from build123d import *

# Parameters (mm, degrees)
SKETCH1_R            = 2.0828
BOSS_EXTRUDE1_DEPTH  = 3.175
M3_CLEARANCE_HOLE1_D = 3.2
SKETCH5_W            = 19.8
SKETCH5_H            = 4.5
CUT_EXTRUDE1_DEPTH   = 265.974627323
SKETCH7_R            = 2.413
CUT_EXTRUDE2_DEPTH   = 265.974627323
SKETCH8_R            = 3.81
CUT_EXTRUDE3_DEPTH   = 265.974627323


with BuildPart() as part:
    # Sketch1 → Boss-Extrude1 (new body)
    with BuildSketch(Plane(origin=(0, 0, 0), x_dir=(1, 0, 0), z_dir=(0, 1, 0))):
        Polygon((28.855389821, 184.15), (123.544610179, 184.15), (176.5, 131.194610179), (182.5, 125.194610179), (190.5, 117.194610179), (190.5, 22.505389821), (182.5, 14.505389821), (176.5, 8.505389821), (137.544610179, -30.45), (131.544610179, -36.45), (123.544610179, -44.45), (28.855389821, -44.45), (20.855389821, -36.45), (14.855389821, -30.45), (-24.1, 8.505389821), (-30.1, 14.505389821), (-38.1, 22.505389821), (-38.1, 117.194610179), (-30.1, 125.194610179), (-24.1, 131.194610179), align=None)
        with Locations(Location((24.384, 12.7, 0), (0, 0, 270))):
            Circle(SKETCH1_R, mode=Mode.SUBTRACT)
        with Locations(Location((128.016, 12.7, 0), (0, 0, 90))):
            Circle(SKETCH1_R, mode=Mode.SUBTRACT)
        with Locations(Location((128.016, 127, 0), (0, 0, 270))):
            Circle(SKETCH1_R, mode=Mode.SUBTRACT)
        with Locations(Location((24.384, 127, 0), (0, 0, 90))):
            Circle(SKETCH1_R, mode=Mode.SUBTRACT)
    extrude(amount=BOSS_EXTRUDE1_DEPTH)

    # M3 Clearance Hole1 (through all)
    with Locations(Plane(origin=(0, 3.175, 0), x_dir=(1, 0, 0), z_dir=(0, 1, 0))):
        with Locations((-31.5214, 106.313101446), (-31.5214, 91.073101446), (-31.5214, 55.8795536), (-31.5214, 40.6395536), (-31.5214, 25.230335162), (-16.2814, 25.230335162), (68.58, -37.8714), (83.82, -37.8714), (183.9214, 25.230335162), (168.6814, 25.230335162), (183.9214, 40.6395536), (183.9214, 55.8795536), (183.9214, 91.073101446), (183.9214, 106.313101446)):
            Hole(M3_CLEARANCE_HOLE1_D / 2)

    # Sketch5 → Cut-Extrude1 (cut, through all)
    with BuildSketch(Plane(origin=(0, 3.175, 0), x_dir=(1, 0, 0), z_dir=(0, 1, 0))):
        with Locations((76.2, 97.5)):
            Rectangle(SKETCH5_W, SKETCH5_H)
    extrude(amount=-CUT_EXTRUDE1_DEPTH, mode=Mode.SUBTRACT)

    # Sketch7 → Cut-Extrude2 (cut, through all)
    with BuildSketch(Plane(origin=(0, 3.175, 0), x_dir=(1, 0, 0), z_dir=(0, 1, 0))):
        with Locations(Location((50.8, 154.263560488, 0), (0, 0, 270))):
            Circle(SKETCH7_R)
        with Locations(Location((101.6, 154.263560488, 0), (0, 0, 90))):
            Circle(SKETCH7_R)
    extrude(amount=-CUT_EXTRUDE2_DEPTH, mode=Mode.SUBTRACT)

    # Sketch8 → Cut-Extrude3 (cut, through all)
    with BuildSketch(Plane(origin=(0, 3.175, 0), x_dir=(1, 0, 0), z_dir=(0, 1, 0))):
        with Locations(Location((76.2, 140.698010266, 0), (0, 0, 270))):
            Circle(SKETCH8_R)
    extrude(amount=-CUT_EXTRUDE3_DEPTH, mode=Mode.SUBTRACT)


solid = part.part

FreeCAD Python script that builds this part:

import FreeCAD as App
import Part
import Sketcher
Q = App.Units.Quantity

doc = App.newDocument("Part")
body = doc.addObject("PartDesign::Body", "Body")

# Sketch on XZ plane
sketch1 = body.newObject("Sketcher::SketchObject", "Sketch")
sketch1.AttachmentSupport = (doc.getObject("XZ_Plane"), [""])
sketch1.MapMode = "FlatFace"
sketch1.addGeometry(Part.LineSegment(App.Vector(123.54461, -184.15, 0), App.Vector(28.85539, -184.15, 0)), False)
sketch1.addGeometry(Part.LineSegment(App.Vector(28.85539, -184.15, 0), App.Vector(-38.1, -117.19461, 0)), False)
sketch1.addGeometry(Part.LineSegment(App.Vector(-38.1, -117.19461, 0), App.Vector(-38.1, -22.50539, 0)), False)
sketch1.addGeometry(Part.LineSegment(App.Vector(-38.1, -22.50539, 0), App.Vector(28.85539, 44.45, 0)), False)
sketch1.addGeometry(Part.LineSegment(App.Vector(28.85539, 44.45, 0), App.Vector(123.54461, 44.45, 0)), False)
sketch1.addGeometry(Part.LineSegment(App.Vector(123.54461, 44.45, 0), App.Vector(190.5, -22.50539, 0)), False)
sketch1.addGeometry(Part.LineSegment(App.Vector(190.5, -22.50539, 0), App.Vector(190.5, -117.19461, 0)), False)
sketch1.addGeometry(Part.LineSegment(App.Vector(190.5, -117.19461, 0), App.Vector(123.54461, -184.15, 0)), False)
sketch1.addGeometry(Part.Circle(App.Vector(128.016, -12.7, 0), App.Vector(0, 0, 1), 2.0828), False)
sketch1.addGeometry(Part.Circle(App.Vector(24.384, -12.7, 0), App.Vector(0, 0, 1), 2.0828), False)
sketch1.addGeometry(Part.Circle(App.Vector(128.016, -127, 0), App.Vector(0, 0, 1), 2.0828), False)
sketch1.addGeometry(Part.Circle(App.Vector(24.384, -127, 0), App.Vector(0, 0, 1), 2.0828), False)
sketch1.addConstraint(Sketcher.Constraint("Coincident", 0, 2, 1, 1))
sketch1.addConstraint(Sketcher.Constraint("Coincident", 1, 2, 2, 1))
sketch1.addConstraint(Sketcher.Constraint("Coincident", 2, 2, 3, 1))
sketch1.addConstraint(Sketcher.Constraint("Coincident", 3, 2, 4, 1))
sketch1.addConstraint(Sketcher.Constraint("Coincident", 4, 2, 5, 1))
sketch1.addConstraint(Sketcher.Constraint("Coincident", 5, 2, 6, 1))
sketch1.addConstraint(Sketcher.Constraint("Coincident", 6, 2, 7, 1))
sketch1.addConstraint(Sketcher.Constraint("Coincident", 7, 2, 0, 1))
sketch1.addConstraint(Sketcher.Constraint("Horizontal", 0))
sketch1.addConstraint(Sketcher.Constraint("Vertical", 2))
sketch1.addConstraint(Sketcher.Constraint("Horizontal", 4))
sketch1.addConstraint(Sketcher.Constraint("Vertical", 6))
sketch1.addConstraint(Sketcher.Constraint("Equal", 8, 9))
sketch1.addConstraint(Sketcher.Constraint("Equal", 9, 10))
sketch1.addConstraint(Sketcher.Constraint("Equal", 10, 11))
sketch1.addConstraint(Sketcher.Constraint("Perpendicular", 1, 3))
sketch1.addConstraint(Sketcher.Constraint("Perpendicular", 3, 5))
sketch1.addConstraint(Sketcher.Constraint("Perpendicular", 5, 7))
sketch1.addConstraint(Sketcher.Constraint("Horizontal", 8, 3, 9, 3))
sketch1.addConstraint(Sketcher.Constraint("Horizontal", 10, 3, 11, 3))
sketch1.addConstraint(Sketcher.Constraint("Horizontal", 2, 2, 5, 2))
sketch1.addConstraint(Sketcher.Constraint("Horizontal", 1, 2, 6, 2))
sketch1.addConstraint(Sketcher.Constraint("Vertical", 8, 3, 10, 3))
sketch1.addConstraint(Sketcher.Constraint("Vertical", 9, 3, 11, 3))
sketch1.addConstraint(Sketcher.Constraint("Vertical", 0, 2, 3, 2))
sketch1.addConstraint(Sketcher.Constraint("Vertical", 4, 2, 7, 2))
sketch1.addConstraint(Sketcher.Constraint("Equal", 4, 2))
sketch1.addConstraint(Sketcher.Constraint("Diameter", 8, Q("0.164 in")))
sketch1.addConstraint(Sketcher.Constraint("DistanceY", 10, 3, -1, 1, Q("5 in")))
sketch1.addConstraint(Sketcher.Constraint("DistanceY", 8, 3, -1, 1, Q("0.5 in")))
sketch1.addConstraint(Sketcher.Constraint("DistanceX", 1, 2, -1, 1, Q("1.5 in")))
sketch1.addConstraint(Sketcher.Constraint("DistanceX", -1, 1, 5, 2, Q("7.5 in")))
sketch1.addConstraint(Sketcher.Constraint("DistanceX", -1, 1, 8, 3, Q("5.04 in")))
sketch1.addConstraint(Sketcher.Constraint("DistanceX", -1, 1, 9, 3, Q("0.96 in")))
sketch1.addConstraint(Sketcher.Constraint("DistanceY", 0, 2, -1, 1, Q("7.25 in")))
sketch1.addConstraint(Sketcher.Constraint("DistanceX", 0, 2, 0, 1, 94.68922))
pad1 = body.newObject("PartDesign::Pad", "Pad")
pad1.Profile = sketch1
pad1.Length = Q("0.125 in")
pad1.Reversed = True

# Sketch on XZ plane
sketch2 = body.newObject("Sketcher::SketchObject", "Sketch001")
sketch2.AttachmentSupport = (doc.getObject("XZ_Plane"), [""])
sketch2.MapMode = "FlatFace"
sketch2.AttachmentOffset = App.Placement(App.Vector(0, 0, -0.125 * 25.4), App.Rotation())
sketch2.addGeometry(Part.Circle(App.Vector(-31.5214, -106.313101, 0), App.Vector(0, 0, 1), 1.6), False)
sketch2.addGeometry(Part.Circle(App.Vector(-31.5214, -91.073101, 0), App.Vector(0, 0, 1), 1.6), False)
sketch2.addGeometry(Part.Circle(App.Vector(-31.5214, -55.879554, 0), App.Vector(0, 0, 1), 1.6), False)
sketch2.addGeometry(Part.Circle(App.Vector(-31.5214, -40.639554, 0), App.Vector(0, 0, 1), 1.6), False)
sketch2.addGeometry(Part.Circle(App.Vector(-31.5214, -25.230335, 0), App.Vector(0, 0, 1), 1.6), False)
sketch2.addGeometry(Part.Circle(App.Vector(-16.2814, -25.230335, 0), App.Vector(0, 0, 1), 1.6), False)
sketch2.addGeometry(Part.Circle(App.Vector(68.58, 37.8714, 0), App.Vector(0, 0, 1), 1.6), False)
sketch2.addGeometry(Part.Circle(App.Vector(83.82, 37.8714, 0), App.Vector(0, 0, 1), 1.6), False)
sketch2.addGeometry(Part.Circle(App.Vector(183.9214, -25.230335, 0), App.Vector(0, 0, 1), 1.6), False)
sketch2.addGeometry(Part.Circle(App.Vector(168.6814, -25.230335, 0), App.Vector(0, 0, 1), 1.6), False)
sketch2.addGeometry(Part.Circle(App.Vector(183.9214, -40.639554, 0), App.Vector(0, 0, 1), 1.6), False)
sketch2.addGeometry(Part.Circle(App.Vector(183.9214, -55.879554, 0), App.Vector(0, 0, 1), 1.6), False)
sketch2.addGeometry(Part.Circle(App.Vector(183.9214, -91.073101, 0), App.Vector(0, 0, 1), 1.6), False)
sketch2.addGeometry(Part.Circle(App.Vector(183.9214, -106.313101, 0), App.Vector(0, 0, 1), 1.6), False)
sketch2.addConstraint(Sketcher.Constraint("Equal", 0, 1))
sketch2.addConstraint(Sketcher.Constraint("Equal", 1, 2))
sketch2.addConstraint(Sketcher.Constraint("Equal", 2, 3))
sketch2.addConstraint(Sketcher.Constraint("Equal", 3, 4))
sketch2.addConstraint(Sketcher.Constraint("Equal", 4, 5))
sketch2.addConstraint(Sketcher.Constraint("Equal", 5, 6))
sketch2.addConstraint(Sketcher.Constraint("Equal", 6, 7))
sketch2.addConstraint(Sketcher.Constraint("Equal", 7, 8))
sketch2.addConstraint(Sketcher.Constraint("Equal", 8, 9))
sketch2.addConstraint(Sketcher.Constraint("Equal", 9, 10))
sketch2.addConstraint(Sketcher.Constraint("Equal", 10, 11))
sketch2.addConstraint(Sketcher.Constraint("Equal", 11, 12))
sketch2.addConstraint(Sketcher.Constraint("Equal", 12, 13))
sketch2.addConstraint(Sketcher.Constraint("Horizontal", 4, 3, 5, 3))
sketch2.addConstraint(Sketcher.Constraint("Horizontal", 6, 3, 7, 3))
sketch2.addConstraint(Sketcher.Constraint("Horizontal", 5, 3, 8, 3))
sketch2.addConstraint(Sketcher.Constraint("Horizontal", 8, 3, 9, 3))
sketch2.addConstraint(Sketcher.Constraint("Horizontal", 3, 3, 10, 3))
sketch2.addConstraint(Sketcher.Constraint("Horizontal", 2, 3, 11, 3))
sketch2.addConstraint(Sketcher.Constraint("Horizontal", 1, 3, 12, 3))
sketch2.addConstraint(Sketcher.Constraint("Horizontal", 0, 3, 13, 3))
sketch2.addConstraint(Sketcher.Constraint("Vertical", 0, 3, 1, 3))
sketch2.addConstraint(Sketcher.Constraint("Vertical", 1, 3, 2, 3))
sketch2.addConstraint(Sketcher.Constraint("Vertical", 2, 3, 3, 3))
sketch2.addConstraint(Sketcher.Constraint("Vertical", 3, 3, 4, 3))
sketch2.addConstraint(Sketcher.Constraint("Vertical", 8, 3, 10, 3))
sketch2.addConstraint(Sketcher.Constraint("Vertical", 10, 3, 11, 3))
sketch2.addConstraint(Sketcher.Constraint("Vertical", 11, 3, 12, 3))
sketch2.addConstraint(Sketcher.Constraint("Vertical", 12, 3, 13, 3))
sketch2.addConstraint(Sketcher.Constraint("DistanceX", -1, 1, 6, 3, Q("2.7 in")))
sketch2.addConstraint(Sketcher.Constraint("DistanceX", -1, 1, 7, 3, Q("3.3 in")))
sketch2.addConstraint(Sketcher.Constraint("DistanceY", 0, 3, 1, 3, Q("0.6 in")))
sketch2.addConstraint(Sketcher.Constraint("DistanceY", 2, 3, 3, 3, Q("0.6 in")))
sketch2.addConstraint(Sketcher.Constraint("DistanceX", 4, 3, 5, 3, Q("0.6 in")))
sketch2.addConstraint(Sketcher.Constraint("DistanceX", 9, 3, 8, 3, Q("0.6 in")))
sketch2.addConstraint(Sketcher.Constraint("Diameter", 0, 3.2))
sketch2.addConstraint(Sketcher.Constraint("DistanceX", 0, 3, -1, 1, Q("1.241 in")))
sketch2.addConstraint(Sketcher.Constraint("DistanceY", -1, 1, 6, 3, Q("1.491 in")))
sketch2.addConstraint(Sketcher.Constraint("DistanceX", -1, 1, 8, 3, Q("7.241 in")))
sketch2.addConstraint(Sketcher.Constraint("DistanceY", 0, 3, -1, 1, 106.313101))
sketch2.addConstraint(Sketcher.Constraint("DistanceY", 3, 3, 4, 3, 15.409218))
sketch2.addConstraint(Sketcher.Constraint("DistanceY", 2, 3, -1, 1, 55.879554))
doc.recompute()
hole = body.newObject("PartDesign::Hole", "Hole")
hole.Profile = sketch2
hole.ThreadType = "None"
hole.Diameter = 3.2
hole.DepthType = "ThroughAll"
hole.Reversed = True

# Sketch on XZ plane
sketch3 = body.newObject("Sketcher::SketchObject", "Sketch002")
sketch3.AttachmentSupport = (doc.getObject("XZ_Plane"), [""])
sketch3.MapMode = "FlatFace"
sketch3.AttachmentOffset = App.Placement(App.Vector(0, 0, -0.125 * 25.4), App.Rotation())
sketch3.addGeometry(Part.LineSegment(App.Vector(66.3, -99.75, 0), App.Vector(66.3, -95.25, 0)), False)
sketch3.addGeometry(Part.LineSegment(App.Vector(66.3, -95.25, 0), App.Vector(86.1, -95.25, 0)), False)
sketch3.addGeometry(Part.LineSegment(App.Vector(86.1, -95.25, 0), App.Vector(86.1, -99.75, 0)), False)
sketch3.addGeometry(Part.LineSegment(App.Vector(86.1, -99.75, 0), App.Vector(66.3, -99.75, 0)), False)
sketch3.addConstraint(Sketcher.Constraint("Coincident", 0, 2, 1, 1))
sketch3.addConstraint(Sketcher.Constraint("Coincident", 1, 2, 2, 1))
sketch3.addConstraint(Sketcher.Constraint("Coincident", 2, 2, 3, 1))
sketch3.addConstraint(Sketcher.Constraint("Coincident", 3, 2, 0, 1))
sketch3.addConstraint(Sketcher.Constraint("Vertical", 0))
sketch3.addConstraint(Sketcher.Constraint("Horizontal", 1))
sketch3.addConstraint(Sketcher.Constraint("Vertical", 2))
sketch3.addConstraint(Sketcher.Constraint("Horizontal", 3))
sketch3.addConstraint(Sketcher.Constraint("DistanceY", 0, 2, -1, 1, Q("3.75 in")))
sketch3.addConstraint(Sketcher.Constraint("DistanceX", 1, 1, 1, 2, 19.8))
sketch3.addConstraint(Sketcher.Constraint("DistanceY", 0, 1, 0, 2, 4.5))
sketch3.addConstraint(Sketcher.Constraint("DistanceX", -1, 1, 0, 2, 66.3))
pocket1 = body.newObject("PartDesign::Pocket", "Pocket")
pocket1.Profile = sketch3
pocket1.Type = "ThroughAll"
pocket1.Reversed = True

# Sketch on XZ plane
sketch4 = body.newObject("Sketcher::SketchObject", "Sketch003")
sketch4.AttachmentSupport = (doc.getObject("XZ_Plane"), [""])
sketch4.MapMode = "FlatFace"
sketch4.AttachmentOffset = App.Placement(App.Vector(0, 0, -0.125 * 25.4), App.Rotation())
sketch4.addGeometry(Part.Circle(App.Vector(50.8, -154.26356, 0), App.Vector(0, 0, 1), 2.413), False)
sketch4.addGeometry(Part.Circle(App.Vector(101.6, -154.26356, 0), App.Vector(0, 0, 1), 2.413), False)
sketch4.addConstraint(Sketcher.Constraint("Equal", 0, 1))
sketch4.addConstraint(Sketcher.Constraint("Horizontal", 0, 3, 1, 3))
sketch4.addConstraint(Sketcher.Constraint("Diameter", 0, Q("0.19 in")))
sketch4.addConstraint(Sketcher.Constraint("DistanceX", -1, 1, 0, 3, Q("2 in")))
sketch4.addConstraint(Sketcher.Constraint("DistanceX", -1, 1, 1, 3, Q("4 in")))
sketch4.addConstraint(Sketcher.Constraint("DistanceY", 0, 3, -1, 1, 154.26356))
pocket2 = body.newObject("PartDesign::Pocket", "Pocket001")
pocket2.Profile = sketch4
pocket2.Type = "ThroughAll"
pocket2.Reversed = True

# Sketch on XZ plane
sketch5 = body.newObject("Sketcher::SketchObject", "Sketch004")
sketch5.AttachmentSupport = (doc.getObject("XZ_Plane"), [""])
sketch5.MapMode = "FlatFace"
sketch5.AttachmentOffset = App.Placement(App.Vector(0, 0, -0.125 * 25.4), App.Rotation())
sketch5.addGeometry(Part.Circle(App.Vector(76.2, -140.69801, 0), App.Vector(0, 0, 1), 3.81), False)
sketch5.addConstraint(Sketcher.Constraint("Diameter", 0, Q("0.3 in")))
sketch5.addConstraint(Sketcher.Constraint("DistanceX", -1, 1, 0, 3, Q("3 in")))
sketch5.addConstraint(Sketcher.Constraint("DistanceY", 0, 3, -1, 1, 140.69801))
pocket3 = body.newObject("PartDesign::Pocket", "Pocket002")
pocket3.Profile = sketch5
pocket3.Type = "ThroughAll"
pocket3.Reversed = True

doc.recompute()
